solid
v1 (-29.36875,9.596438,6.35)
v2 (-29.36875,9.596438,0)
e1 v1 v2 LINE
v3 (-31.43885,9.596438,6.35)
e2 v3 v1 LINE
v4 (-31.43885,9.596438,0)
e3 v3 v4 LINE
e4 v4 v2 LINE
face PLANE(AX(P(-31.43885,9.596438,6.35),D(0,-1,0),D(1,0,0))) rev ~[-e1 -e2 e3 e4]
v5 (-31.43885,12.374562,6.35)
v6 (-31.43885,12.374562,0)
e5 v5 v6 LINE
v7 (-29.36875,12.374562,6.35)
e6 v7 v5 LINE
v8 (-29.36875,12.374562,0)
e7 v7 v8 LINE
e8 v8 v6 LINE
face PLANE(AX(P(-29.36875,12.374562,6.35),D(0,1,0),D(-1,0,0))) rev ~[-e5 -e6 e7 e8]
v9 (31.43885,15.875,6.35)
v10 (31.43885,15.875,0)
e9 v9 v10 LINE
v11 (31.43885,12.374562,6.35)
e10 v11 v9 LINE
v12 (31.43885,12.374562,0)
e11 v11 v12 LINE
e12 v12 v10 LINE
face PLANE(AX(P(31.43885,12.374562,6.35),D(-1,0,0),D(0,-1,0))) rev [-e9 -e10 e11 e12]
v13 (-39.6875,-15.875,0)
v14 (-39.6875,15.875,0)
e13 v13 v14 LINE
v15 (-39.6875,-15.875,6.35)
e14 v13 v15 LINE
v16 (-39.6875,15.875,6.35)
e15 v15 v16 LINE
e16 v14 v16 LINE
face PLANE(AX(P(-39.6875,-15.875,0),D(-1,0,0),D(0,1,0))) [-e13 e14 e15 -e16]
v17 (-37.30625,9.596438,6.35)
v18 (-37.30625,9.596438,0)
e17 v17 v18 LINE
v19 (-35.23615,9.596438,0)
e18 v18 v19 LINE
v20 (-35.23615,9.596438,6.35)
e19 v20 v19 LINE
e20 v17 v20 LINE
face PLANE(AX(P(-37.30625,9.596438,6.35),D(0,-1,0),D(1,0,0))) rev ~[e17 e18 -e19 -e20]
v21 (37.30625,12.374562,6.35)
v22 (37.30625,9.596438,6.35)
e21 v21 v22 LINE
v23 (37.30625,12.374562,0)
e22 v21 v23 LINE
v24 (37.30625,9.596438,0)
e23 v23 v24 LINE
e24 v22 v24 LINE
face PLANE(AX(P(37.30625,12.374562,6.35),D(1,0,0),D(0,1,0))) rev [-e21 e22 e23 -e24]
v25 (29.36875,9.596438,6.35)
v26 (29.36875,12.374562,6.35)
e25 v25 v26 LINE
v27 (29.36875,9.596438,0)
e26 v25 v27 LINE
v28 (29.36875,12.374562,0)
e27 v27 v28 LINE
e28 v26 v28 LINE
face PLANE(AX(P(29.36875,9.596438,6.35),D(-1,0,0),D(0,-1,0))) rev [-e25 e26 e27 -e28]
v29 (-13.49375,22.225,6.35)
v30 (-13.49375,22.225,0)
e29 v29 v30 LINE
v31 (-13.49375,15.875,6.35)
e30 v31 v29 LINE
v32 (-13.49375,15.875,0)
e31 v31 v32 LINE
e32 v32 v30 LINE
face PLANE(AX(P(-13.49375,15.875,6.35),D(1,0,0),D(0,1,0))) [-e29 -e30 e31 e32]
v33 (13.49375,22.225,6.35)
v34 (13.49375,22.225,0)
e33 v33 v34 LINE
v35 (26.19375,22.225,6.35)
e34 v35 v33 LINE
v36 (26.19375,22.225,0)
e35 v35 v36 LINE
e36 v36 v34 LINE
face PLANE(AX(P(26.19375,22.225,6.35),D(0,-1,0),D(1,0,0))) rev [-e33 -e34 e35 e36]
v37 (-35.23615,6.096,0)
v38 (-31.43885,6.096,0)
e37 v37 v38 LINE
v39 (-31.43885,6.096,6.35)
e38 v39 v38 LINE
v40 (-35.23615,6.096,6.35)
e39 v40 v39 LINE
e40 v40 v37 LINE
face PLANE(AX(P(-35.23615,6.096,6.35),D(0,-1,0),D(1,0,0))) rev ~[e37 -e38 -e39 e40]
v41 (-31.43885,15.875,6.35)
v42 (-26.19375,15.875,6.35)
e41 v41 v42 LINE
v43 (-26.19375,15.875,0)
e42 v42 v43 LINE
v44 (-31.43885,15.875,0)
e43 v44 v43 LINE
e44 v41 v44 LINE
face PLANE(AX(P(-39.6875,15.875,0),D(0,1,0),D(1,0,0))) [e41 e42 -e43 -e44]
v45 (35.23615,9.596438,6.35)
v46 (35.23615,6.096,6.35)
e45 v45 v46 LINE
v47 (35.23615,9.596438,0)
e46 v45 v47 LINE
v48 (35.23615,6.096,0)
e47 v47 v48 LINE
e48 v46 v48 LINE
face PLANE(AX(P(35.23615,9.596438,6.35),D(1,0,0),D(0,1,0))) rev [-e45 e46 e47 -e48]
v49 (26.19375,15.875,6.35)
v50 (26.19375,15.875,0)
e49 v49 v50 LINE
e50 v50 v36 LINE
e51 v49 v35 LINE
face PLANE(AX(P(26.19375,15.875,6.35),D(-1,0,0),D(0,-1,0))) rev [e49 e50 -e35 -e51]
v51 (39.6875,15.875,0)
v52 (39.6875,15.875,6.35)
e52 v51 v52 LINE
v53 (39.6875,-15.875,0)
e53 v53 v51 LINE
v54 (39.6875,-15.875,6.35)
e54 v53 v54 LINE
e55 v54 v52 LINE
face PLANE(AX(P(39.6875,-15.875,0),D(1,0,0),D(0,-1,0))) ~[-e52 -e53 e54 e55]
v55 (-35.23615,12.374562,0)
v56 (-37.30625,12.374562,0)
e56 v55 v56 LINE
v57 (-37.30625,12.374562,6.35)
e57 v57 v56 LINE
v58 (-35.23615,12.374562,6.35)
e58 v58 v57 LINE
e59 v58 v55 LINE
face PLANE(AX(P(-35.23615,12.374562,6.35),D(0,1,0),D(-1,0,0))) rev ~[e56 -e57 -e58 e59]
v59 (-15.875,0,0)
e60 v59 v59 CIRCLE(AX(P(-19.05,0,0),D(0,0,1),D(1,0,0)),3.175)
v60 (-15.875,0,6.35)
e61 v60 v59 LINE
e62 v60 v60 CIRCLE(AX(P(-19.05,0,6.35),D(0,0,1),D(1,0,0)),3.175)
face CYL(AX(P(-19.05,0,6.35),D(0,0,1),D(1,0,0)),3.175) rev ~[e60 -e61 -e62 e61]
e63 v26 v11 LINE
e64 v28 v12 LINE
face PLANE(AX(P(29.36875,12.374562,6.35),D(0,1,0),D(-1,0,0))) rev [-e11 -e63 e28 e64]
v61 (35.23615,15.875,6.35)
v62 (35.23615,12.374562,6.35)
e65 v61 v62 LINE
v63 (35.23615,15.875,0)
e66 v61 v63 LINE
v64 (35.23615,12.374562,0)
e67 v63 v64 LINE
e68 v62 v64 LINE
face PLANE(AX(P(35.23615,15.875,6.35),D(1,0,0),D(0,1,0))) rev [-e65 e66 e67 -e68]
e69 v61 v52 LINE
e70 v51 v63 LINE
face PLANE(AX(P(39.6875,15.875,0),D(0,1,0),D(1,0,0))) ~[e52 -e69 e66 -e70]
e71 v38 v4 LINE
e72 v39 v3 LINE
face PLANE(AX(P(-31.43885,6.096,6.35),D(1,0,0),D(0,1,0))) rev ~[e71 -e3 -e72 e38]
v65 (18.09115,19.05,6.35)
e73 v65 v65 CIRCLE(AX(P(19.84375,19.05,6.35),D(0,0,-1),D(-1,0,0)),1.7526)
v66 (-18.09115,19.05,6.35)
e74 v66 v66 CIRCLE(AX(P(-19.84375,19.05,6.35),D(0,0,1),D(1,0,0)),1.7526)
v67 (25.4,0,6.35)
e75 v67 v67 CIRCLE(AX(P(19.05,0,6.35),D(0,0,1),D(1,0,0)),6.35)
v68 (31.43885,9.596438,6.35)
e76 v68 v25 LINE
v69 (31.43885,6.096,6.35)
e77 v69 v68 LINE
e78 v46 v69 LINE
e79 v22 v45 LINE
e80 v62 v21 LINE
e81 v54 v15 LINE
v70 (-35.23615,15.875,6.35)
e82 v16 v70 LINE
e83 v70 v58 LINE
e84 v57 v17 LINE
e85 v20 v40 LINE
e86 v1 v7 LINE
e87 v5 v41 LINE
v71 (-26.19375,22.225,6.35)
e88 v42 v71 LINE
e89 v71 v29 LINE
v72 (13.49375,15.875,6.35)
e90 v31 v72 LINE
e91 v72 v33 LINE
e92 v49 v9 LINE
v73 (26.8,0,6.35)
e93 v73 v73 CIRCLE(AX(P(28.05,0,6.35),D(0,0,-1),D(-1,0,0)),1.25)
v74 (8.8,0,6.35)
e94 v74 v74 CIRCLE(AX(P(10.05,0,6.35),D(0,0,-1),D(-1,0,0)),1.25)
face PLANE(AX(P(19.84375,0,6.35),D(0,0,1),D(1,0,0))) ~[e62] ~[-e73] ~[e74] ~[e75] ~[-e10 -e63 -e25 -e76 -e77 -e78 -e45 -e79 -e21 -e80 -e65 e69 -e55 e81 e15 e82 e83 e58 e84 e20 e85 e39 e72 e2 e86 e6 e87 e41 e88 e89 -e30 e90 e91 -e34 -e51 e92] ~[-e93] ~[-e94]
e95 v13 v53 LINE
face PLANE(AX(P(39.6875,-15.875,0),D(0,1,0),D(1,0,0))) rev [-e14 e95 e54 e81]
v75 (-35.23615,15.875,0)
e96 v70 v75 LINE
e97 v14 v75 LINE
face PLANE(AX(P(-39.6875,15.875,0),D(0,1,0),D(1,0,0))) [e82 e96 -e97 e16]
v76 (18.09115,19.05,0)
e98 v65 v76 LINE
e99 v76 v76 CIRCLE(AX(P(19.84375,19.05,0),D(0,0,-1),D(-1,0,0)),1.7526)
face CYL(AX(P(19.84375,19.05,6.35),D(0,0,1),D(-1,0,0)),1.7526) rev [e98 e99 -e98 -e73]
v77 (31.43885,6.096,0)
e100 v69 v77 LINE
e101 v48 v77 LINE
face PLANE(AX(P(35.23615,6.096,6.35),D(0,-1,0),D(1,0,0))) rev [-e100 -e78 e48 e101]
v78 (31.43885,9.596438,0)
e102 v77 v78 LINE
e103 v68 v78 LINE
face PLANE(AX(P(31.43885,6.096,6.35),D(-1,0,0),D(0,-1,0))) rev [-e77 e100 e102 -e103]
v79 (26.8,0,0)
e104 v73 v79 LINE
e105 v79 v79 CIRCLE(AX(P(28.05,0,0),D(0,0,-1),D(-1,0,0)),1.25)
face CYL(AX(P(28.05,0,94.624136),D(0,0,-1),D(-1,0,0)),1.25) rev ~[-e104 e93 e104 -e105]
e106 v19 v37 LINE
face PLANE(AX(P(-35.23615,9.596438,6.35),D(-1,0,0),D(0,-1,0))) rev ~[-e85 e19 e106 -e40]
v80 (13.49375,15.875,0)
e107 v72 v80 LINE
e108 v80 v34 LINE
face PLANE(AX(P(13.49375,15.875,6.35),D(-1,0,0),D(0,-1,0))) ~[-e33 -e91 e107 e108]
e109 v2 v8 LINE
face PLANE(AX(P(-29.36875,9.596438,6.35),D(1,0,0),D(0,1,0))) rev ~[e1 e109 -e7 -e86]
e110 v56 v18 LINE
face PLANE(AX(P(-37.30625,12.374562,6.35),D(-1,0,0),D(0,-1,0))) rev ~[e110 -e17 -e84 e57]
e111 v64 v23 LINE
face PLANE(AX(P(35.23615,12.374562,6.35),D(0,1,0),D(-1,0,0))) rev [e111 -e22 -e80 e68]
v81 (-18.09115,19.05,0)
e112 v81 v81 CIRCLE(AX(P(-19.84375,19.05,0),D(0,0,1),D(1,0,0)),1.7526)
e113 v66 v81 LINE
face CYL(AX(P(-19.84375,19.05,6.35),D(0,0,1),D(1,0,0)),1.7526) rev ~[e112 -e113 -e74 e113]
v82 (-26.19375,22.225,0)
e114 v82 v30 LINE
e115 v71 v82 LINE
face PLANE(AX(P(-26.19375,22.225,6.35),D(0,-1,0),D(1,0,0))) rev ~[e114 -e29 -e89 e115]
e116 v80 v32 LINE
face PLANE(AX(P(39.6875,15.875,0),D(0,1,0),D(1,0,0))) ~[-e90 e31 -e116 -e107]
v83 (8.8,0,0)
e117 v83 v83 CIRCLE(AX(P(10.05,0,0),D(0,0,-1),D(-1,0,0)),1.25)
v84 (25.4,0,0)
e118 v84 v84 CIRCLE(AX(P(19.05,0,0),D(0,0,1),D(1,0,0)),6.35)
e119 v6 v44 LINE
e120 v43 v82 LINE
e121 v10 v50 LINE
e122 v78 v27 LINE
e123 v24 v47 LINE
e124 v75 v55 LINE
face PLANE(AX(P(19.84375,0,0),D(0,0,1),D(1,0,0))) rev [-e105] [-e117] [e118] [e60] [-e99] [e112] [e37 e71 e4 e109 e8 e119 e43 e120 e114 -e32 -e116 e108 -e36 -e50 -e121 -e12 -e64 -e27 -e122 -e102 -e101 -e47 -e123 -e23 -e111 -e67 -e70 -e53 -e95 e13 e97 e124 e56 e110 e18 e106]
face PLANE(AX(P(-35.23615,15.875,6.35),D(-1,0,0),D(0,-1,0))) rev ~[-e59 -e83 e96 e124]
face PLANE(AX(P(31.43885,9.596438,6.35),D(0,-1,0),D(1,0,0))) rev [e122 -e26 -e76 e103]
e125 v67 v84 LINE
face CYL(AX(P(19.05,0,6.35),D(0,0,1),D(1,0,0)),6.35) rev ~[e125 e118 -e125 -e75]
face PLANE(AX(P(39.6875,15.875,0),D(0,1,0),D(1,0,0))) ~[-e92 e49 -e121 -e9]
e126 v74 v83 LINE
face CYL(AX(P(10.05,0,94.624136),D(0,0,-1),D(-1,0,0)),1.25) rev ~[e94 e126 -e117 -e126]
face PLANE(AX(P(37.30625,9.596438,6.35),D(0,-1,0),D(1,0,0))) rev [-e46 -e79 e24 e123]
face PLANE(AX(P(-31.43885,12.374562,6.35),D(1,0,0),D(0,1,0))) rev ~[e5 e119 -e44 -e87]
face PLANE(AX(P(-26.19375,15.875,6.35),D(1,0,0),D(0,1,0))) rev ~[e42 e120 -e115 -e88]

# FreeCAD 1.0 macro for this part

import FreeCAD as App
import Part
import Sketcher

V = App.Vector
Q = App.Units.Quantity

doc = App.newDocument("Part")
body = doc.addObject("PartDesign::Body", "Body")

# Sketch on XY plane
sketch1 = body.newObject("Sketcher::SketchObject", "Sketch")
sketch1.AttachmentSupport = (doc.getObject("XY_Plane"), [""])
sketch1.MapMode = "FlatFace"
sketch1.addGeometry([
    Part.LineSegment(V(-40, 16, 0), V(-40, -16, 0)),
    Part.LineSegment(V(-40, -16, 0), V(0, -16, 0)),
    Part.LineSegment(V(0, -16, 0), V(0, 16, 0)),
    Part.LineSegment(V(0, 16, 0), V(-40, 16, 0)),
], False)
sketch1.addConstraint([
    Sketcher.Constraint("Coincident", 0, 2, 1, 1),
    Sketcher.Constraint("Coincident", 1, 2, 2, 1),
    Sketcher.Constraint("Coincident", 2, 2, 3, 1),
    Sketcher.Constraint("Coincident", 3, 2, 0, 1),
    Sketcher.Constraint("Vertical", 0),
    Sketcher.Constraint("Horizontal", 1),
    Sketcher.Constraint("Vertical", 2),
    Sketcher.Constraint("Horizontal", 3),
    Sketcher.Constraint("Symmetric", 1, 2, 2, 2, -1, 1),
    Sketcher.Constraint("DistanceY", 0, 2, 0, 1, Q("1.25 in")),
    Sketcher.Constraint("DistanceX", 1, 1, 1, 2, Q("1.5625 in")),
])
pad1 = body.newObject("PartDesign::Pad", "Pad")
pad1.Profile = sketch1
pad1.Length = Q("0.25 in")

# Sketch on XY plane
sketch2 = body.newObject("Sketcher::SketchObject", "Sketch001")
sketch2.AttachmentSupport = (doc.getObject("XY_Plane"), [""])
sketch2.MapMode = "FlatFace"
sketch2.AttachmentOffset = App.Placement(V(0, 0, 0.25 * 25.4), App.Rotation())
sketch2.addGeometry(Part.Circle(V(-19.1, 0, 0), V(0, 0, 1), 3.2), False)
sketch2.addConstraint([
    Sketcher.Constraint("PointOnObject", 0, 3, -1),
    Sketcher.Constraint("Diameter", 0, Q("0.25 in")),
    Sketcher.Constraint("DistanceX", 0, 3, -1, 1, Q("0.75 in")),
])
pocket1 = body.newObject("PartDesign::Pocket", "Pocket")
pocket1.Profile = sketch2
pocket1.Length = Q("0.25 in")

# Sketch on XY plane
sketch3 = body.newObject("Sketcher::SketchObject", "Sketch002")
sketch3.AttachmentSupport = (doc.getObject("XY_Plane"), [""])
sketch3.MapMode = "FlatFace"
sketch3.AttachmentOffset = App.Placement(V(0, 0, 0.25 * 25.4), App.Rotation())
sketch3.addGeometry([
    Part.LineSegment(V(-35.2, 6.1, 0), V(-31.4, 6.1, 0)),  # 0
    Part.LineSegment(V(-31.4, 6.1, 0), V(-31.4, 9.6, 0)),  # 1
    Part.LineSegment(V(-31.4, 9.6, 0), V(-29.4, 9.6, 0)),  # 2
    Part.LineSegment(V(-29.4, 9.6, 0), V(-29.4, 12.4, 0)),  # 3
    Part.LineSegment(V(-29.4, 12.4, 0), V(-31.4, 12.4, 0)),  # 4
    Part.LineSegment(V(-31.4, 12.4, 0), V(-31.4, 15.9, 0)),  # 5
    Part.LineSegment(V(-31.4, 15.9, 0), V(-35.2, 15.9, 0)),  # 6
    Part.LineSegment(V(-35.2, 15.9, 0), V(-35.2, 12.4, 0)),  # 7
    Part.LineSegment(V(-35.2, 12.4, 0), V(-37.3, 12.4, 0)),  # 8
    Part.LineSegment(V(-37.3, 12.4, 0), V(-37.3, 9.6, 0)),  # 9
    Part.LineSegment(V(-37.3, 9.6, 0), V(-35.2, 9.6, 0)),  # 10
    Part.LineSegment(V(-35.2, 9.6, 0), V(-35.2, 6.1, 0)),  # 11
], False)
sketch3.addConstraint([
    Sketcher.Constraint("Coincident", 0, 2, 1, 1),
    Sketcher.Constraint("Coincident", 1, 2, 2, 1),
    Sketcher.Constraint("Coincident", 2, 2, 3, 1),
    Sketcher.Constraint("Coincident", 3, 2, 4, 1),
    Sketcher.Constraint("Coincident", 4, 2, 5, 1),
    Sketcher.Constraint("Coincident", 5, 2, 6, 1),
    Sketcher.Constraint("Coincident", 6, 2, 7, 1),
    Sketcher.Constraint("Coincident", 7, 2, 8, 1),
    Sketcher.Constraint("Coincident", 8, 2, 9, 1),
    Sketcher.Constraint("Coincident", 9, 2, 10, 1),
    Sketcher.Constraint("Coincident", 10, 2, 11, 1),
    Sketcher.Constraint("Coincident", 11, 2, 0, 1),
    Sketcher.Constraint("Horizontal", 0),
    Sketcher.Constraint("Vertical", 1),
    Sketcher.Constraint("Horizontal", 2),
    Sketcher.Constraint("Vertical", 3),
    Sketcher.Constraint("Horizontal", 4),
    Sketcher.Constraint("Vertical", 5),
    Sketcher.Constraint("Horizontal", 6),
    Sketcher.Constraint("Vertical", 7),
    Sketcher.Constraint("Horizontal", 8),
    Sketcher.Constraint("Vertical", 9),
    Sketcher.Constraint("Horizontal", 10),
    Sketcher.Constraint("Vertical", 11),
    Sketcher.Constraint("Horizontal", 4, 2, 7, 2),
    Sketcher.Constraint("Horizontal", 2, 2, 9, 2),
    Sketcher.Constraint("Vertical", 1, 2, 4, 2),
    Sketcher.Constraint("Vertical", 7, 2, 10, 2),
    Sketcher.Constraint("Equal", 4, 8),
    Sketcher.Constraint("Equal", 1, 5),
    Sketcher.Constraint("DistanceY", 3, 1, 3, 2, Q("0.109375 in")),
    Sketcher.Constraint("DistanceY", -1, 1, 0, 2, Q("0.24 in")),
    Sketcher.Constraint("DistanceX", 0, 1, 0, 2, Q("0.1495 in")),
    Sketcher.Constraint("DistanceX", 2, 1, 2, 2, Q("0.0815 in")),
    Sketcher.Constraint("DistanceX", 2, 2, -1, 1, Q("1.15625 in")),
    Sketcher.Constraint("DistanceY", -1, 1, 5, 2, Q("0.625 in")),
])
pocket2 = body.newObject("PartDesign::Pocket", "Pocket001")
pocket2.Profile = sketch3
pocket2.Length = Q("0.25 in")

# Sketch on XY plane
sketch4 = body.newObject("Sketcher::SketchObject", "Sketch003")
sketch4.AttachmentSupport = (doc.getObject("XY_Plane"), [""])
sketch4.MapMode = "FlatFace"
sketch4.AttachmentOffset = App.Placement(V(0, 0, 0.25 * 25.4), App.Rotation())
sketch4.addGeometry([
    Part.LineSegment(V(-26.2, 22.2, 0), V(-26.2, 15.9, 0)),  # 0
    Part.LineSegment(V(-26.2, 15.9, 0), V(-13.5, 15.9, 0)),  # 1
    Part.LineSegment(V(-13.5, 15.9, 0), V(-13.5, 22.2, 0)),  # 2
    Part.LineSegment(V(-13.5, 22.2, 0), V(-26.2, 22.2, 0)),  # 3
    Part.Circle(V(-19.8, 19.1, 0), V(0, 0, 1), 1.8),  # 4
], False)
sketch4.addConstraint([
    Sketcher.Constraint("Coincident", 0, 2, 1, 1),
    Sketcher.Constraint("Coincident", 1, 2, 2, 1),
    Sketcher.Constraint("Coincident", 2, 2, 3, 1),
    Sketcher.Constraint("Coincident", 3, 2, 0, 1),
    Sketcher.Constraint("Vertical", 0),
    Sketcher.Constraint("Horizontal", 1),
    Sketcher.Constraint("Vertical", 2),
    Sketcher.Constraint("Horizontal", 3),
    Sketcher.Constraint("Diameter", 4, Q("0.138 in")),
    Sketcher.Constraint("DistanceX", 1, 1, 1, 2, Q("0.5 in")),
    Sketcher.Constraint("DistanceY", 0, 2, 0, 1, Q("0.25 in")),
    Sketcher.Constraint("DistanceY", -1, 1, 4, 3, Q("0.75 in")),
    Sketcher.Constraint("DistanceX", 0, 2, 4, 3, Q("0.25 in")),
    Sketcher.Constraint("DistanceX", 4, 3, -1, 1, Q("0.78125 in")),
    Sketcher.Constraint("DistanceY", -1, 1, 0, 2, Q("0.625 in")),
])
pad2 = body.newObject("PartDesign::Pad", "Pad001")
pad2.Profile = sketch4
pad2.Length = Q("0.25 in")
pad2.Reversed = True
doc.recompute()

mirrored = body.newObject("PartDesign::Mirrored", "Mirrored")
mirrored.Originals = [pad1, pocket2, pad2]
mirrored.MirrorPlane = (doc.getObject("YZ_Plane"), [""])
body.Tip = mirrored

# Sketch on XY plane
sketch5 = body.newObject("Sketcher::SketchObject", "Sketch004")
sketch5.AttachmentSupport = (doc.getObject("XY_Plane"), [""])
sketch5.MapMode = "FlatFace"
sketch5.AttachmentOffset = App.Placement(V(0, 0, 0.25 * 25.4), App.Rotation())
sketch5.addGeometry(Part.Circle(V(19, 0, 0), V(0, 0, 1), 6), False)
sketch5.addConstraint([
    Sketcher.Constraint("PointOnObject", 0, 3, -1),
    Sketcher.Constraint("Diameter", 0, Q("0.5 in")),
    Sketcher.Constraint("DistanceX", -1, 1, 0, 3, Q("0.75 in")),
])
pocket3 = body.newObject("PartDesign::Pocket", "Pocket002")
pocket3.Profile = sketch5
pocket3.Length = Q("0.25 in")

# Sketch on XY plane
sketch6 = body.newObject("Sketcher::SketchObject", "Sketch005")
sketch6.AttachmentSupport = (doc.getObject("XY_Plane"), [""])
sketch6.MapMode = "FlatFace"
sketch6.AttachmentOffset = App.Placement(V(0, 0, 0.25 * 25.4), App.Rotation())
sketch6.addGeometry([
    Part.Circle(V(28.1, 0, 0), V(0, 0, 1), 1.2),
    Part.Circle(V(10.1, 0, 0), V(0, 0, 1), 1.2),
], False)
sketch6.addConstraint([
    Sketcher.Constraint("Equal", 0, 1),
    Sketcher.Constraint("PointOnObject", 0, 3, -1),
    Sketcher.Constraint("PointOnObject", 1, 3, -1),
    Sketcher.Constraint("Diameter", 0, 2.5),
    Sketcher.Constraint("DistanceX", -1, 1, 0, 3, 28.05),
    Sketcher.Constraint("DistanceX", -1, 1, 1, 3, 10.05),
])
doc.recompute()
hole = body.newObject("PartDesign::Hole", "Hole")
hole.Profile = sketch6
hole.ThreadType = "None"
hole.Diameter = 2.5
hole.DepthType = "ThroughAll"

doc.recompute()
